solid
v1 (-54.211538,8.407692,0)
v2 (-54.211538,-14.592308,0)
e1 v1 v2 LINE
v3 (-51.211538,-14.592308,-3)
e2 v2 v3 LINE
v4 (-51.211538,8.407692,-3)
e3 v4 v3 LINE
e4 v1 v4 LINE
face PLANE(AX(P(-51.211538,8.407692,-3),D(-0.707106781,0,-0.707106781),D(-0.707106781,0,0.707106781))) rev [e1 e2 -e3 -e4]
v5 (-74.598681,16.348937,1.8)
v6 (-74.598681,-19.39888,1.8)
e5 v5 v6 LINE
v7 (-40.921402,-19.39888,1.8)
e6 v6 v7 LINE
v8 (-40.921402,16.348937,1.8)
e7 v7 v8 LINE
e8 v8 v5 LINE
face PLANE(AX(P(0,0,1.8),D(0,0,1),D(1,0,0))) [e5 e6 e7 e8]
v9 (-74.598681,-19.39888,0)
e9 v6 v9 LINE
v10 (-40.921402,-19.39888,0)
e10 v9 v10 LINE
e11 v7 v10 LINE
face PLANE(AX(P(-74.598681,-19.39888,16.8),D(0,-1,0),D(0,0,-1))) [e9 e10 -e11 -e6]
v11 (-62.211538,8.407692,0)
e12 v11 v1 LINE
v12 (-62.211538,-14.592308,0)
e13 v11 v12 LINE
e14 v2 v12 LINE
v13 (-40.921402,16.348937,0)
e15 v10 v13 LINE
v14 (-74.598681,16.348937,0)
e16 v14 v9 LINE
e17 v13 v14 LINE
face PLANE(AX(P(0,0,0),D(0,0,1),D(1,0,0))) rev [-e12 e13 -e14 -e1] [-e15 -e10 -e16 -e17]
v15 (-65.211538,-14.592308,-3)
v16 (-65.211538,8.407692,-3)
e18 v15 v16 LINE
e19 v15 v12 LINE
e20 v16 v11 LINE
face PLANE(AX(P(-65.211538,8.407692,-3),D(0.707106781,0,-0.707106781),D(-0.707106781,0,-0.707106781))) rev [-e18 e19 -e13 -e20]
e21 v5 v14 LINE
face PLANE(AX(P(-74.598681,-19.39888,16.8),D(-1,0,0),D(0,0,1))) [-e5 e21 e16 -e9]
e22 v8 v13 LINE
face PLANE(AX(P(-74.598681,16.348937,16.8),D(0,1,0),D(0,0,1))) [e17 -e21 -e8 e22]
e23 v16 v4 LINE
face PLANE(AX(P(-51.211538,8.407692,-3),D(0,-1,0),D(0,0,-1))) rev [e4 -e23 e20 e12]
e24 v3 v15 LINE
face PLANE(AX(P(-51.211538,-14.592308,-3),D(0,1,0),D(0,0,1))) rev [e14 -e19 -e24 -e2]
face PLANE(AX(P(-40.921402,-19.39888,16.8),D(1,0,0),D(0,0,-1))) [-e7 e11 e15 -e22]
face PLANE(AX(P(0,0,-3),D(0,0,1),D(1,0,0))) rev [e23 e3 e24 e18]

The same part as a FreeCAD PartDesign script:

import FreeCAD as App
import Part
import Sketcher
Q = App.Units.Quantity


def add_polygon(sketch, points):
    """Adds a closed chain of lines whose ends are joined by coincident constraints."""
    first, n = sketch.GeometryCount, len(points)
    for a, b in zip(points, points[1:] + points[:1]):
        sketch.addGeometry(Part.LineSegment(App.Vector(*a, 0), App.Vector(*b, 0)), False)
    for i in range(n):
        sketch.addConstraint(Sketcher.Constraint("Coincident", first + i, 2, first + (i + 1) % n, 1))

doc = App.newDocument("Part")
params = doc.addObject("Spreadsheet::Sheet", "Params")
for row, (alias, value) in enumerate([
    ("sketch1_height", "74 mm"),
    ("sketch1_width", "65.5 mm"),
    ("pad1_length", "1.8 mm"),
    ("sketch2_width", "5 mm"),
    ("sketch2_height", "74 mm"),
    ("pad2_length", "15 mm"),
    ("sketch3_width", "1.3 mm"),
    ("sketch3_width2", "3.4 mm"),
    ("sketch3_height", "0.9 mm"),
    ("sketch3_height2", "2.1 mm"),
    ("pocket1_length", "74 mm"),
    ("sketch4_width", "10 mm"),
    ("sketch4_width2", "20 mm"),
    ("sketch4_width3", "65.5 mm"),
    ("sketch4_height", "8.7 mm"),
    ("sketch4_height2", "5.7 mm"),
    ("pad3_length", "1.8 mm"),
    ("sketch5_width", "14 mm"),
    ("sketch5_height", "23 mm"),
    ("pad4_length", "3 mm"),
    ("sketch6_width", "3 mm"),
    ("pocket2_length", "23 mm"),
    ("sketch7_diameter", "2 mm"),
    ("pocket3_length", "8 mm"),
    ("sketch8_diameter", "2 mm"),
    ("pocket4_length", "8 mm"),
    ("pocket5_length", "16.8 mm"),
], start=1):
    params.set(f"A{row}", alias)
    params.set(f"B{row}", "=" + value)
    params.setAlias(f"B{row}", alias)

body = doc.addObject("PartDesign::Body", "Body")

sketch1 = doc.addObject("Sketcher::SketchObject", "Sketch")
body.addObject(sketch1)
sketch1.AttachmentSupport = (doc.XY_Plane, [""])
sketch1.MapMode = "FlatFace"
add_polygon(sketch1, [(-91, 35), (-91, -39), (-25, -39), (-25, 35)])
sketch1.addConstraint(Sketcher.Constraint("Vertical", 0))
sketch1.addConstraint(Sketcher.Constraint("Horizontal", 1))
sketch1.addConstraint(Sketcher.Constraint("Vertical", 2))
sketch1.addConstraint(Sketcher.Constraint("Horizontal", 3))
sketch1.addConstraint(Sketcher.Constraint("DistanceY", 0, 2, 0, 1, Q("74 mm")))
sketch1.addConstraint(Sketcher.Constraint("DistanceX", 1, 1, 1, 2, Q("65.5 mm")))
sketch1.addConstraint(Sketcher.Constraint("DistanceX", 0, 2, -1, 1, Q("90.961538 mm")))
sketch1.addConstraint(Sketcher.Constraint("DistanceY", 0, 2, -1, 1, Q("39.192308 mm")))
sketch1.setExpression("Constraints[8]", "Params.sketch1_height")
sketch1.setExpression("Constraints[9]", "Params.sketch1_width")
pad1 = doc.addObject("PartDesign::Pad", "Pad")
body.addObject(pad1)
pad1.Profile = sketch1
pad1.setExpression("Length", "Params.pad1_length")

sketch2 = doc.addObject("Sketcher::SketchObject", "Sketch001")
body.addObject(sketch2)
sketch2.AttachmentSupport = (doc.XY_Plane, [""])
sketch2.MapMode = "FlatFace"
sketch2.AttachmentOffset = App.Placement(App.Vector(0, 0, 1.8), App.Rotation())
add_polygon(sketch2, [(-91, 35), (-91, -39), (-86, -39), (-86, 35)])
add_polygon(sketch2, [(-30, 35), (-30, -39), (-25, -39), (-25, 35)])
sketch2.addConstraint(Sketcher.Constraint("Vertical", 0))
sketch2.addConstraint(Sketcher.Constraint("Horizontal", 1))
sketch2.addConstraint(Sketcher.Constraint("Vertical", 2))
sketch2.addConstraint(Sketcher.Constraint("Horizontal", 3))
sketch2.addConstraint(Sketcher.Constraint("Vertical", 4))
sketch2.addConstraint(Sketcher.Constraint("Horizontal", 5))
sketch2.addConstraint(Sketcher.Constraint("Vertical", 6))
sketch2.addConstraint(Sketcher.Constraint("Horizontal", 7))
sketch2.addConstraint(Sketcher.Constraint("Horizontal", 1, 2, 4, 2))
sketch2.addConstraint(Sketcher.Constraint("Horizontal", 3, 2, 6, 2))
sketch2.addConstraint(Sketcher.Constraint("Equal", 3, 5))
sketch2.addConstraint(Sketcher.Constraint("DistanceX", 1, 1, 1, 2, Q("5 mm")))
sketch2.addConstraint(Sketcher.Constraint("DistanceY", 0, 2, 0, 1, Q("74 mm")))
sketch2.addConstraint(Sketcher.Constraint("DistanceX", 1, 2, 4, 2, Q("55.5 mm")))
sketch2.addConstraint(Sketcher.Constraint("DistanceX", 0, 2, -1, 1, Q("90.961538 mm")))
sketch2.addConstraint(Sketcher.Constraint("DistanceY", 0, 2, -1, 1, Q("39.192308 mm")))
sketch2.setExpression("Constraints[19]", "Params.sketch2_width")
sketch2.setExpression("Constraints[20]", "Params.sketch2_height")
pad2 = doc.addObject("PartDesign::Pad", "Pad001")
body.addObject(pad2)
pad2.Profile = sketch2
pad2.setExpression("Length", "Params.pad2_length")

sketch3 = doc.addObject("Sketcher::SketchObject", "Sketch002")
body.addObject(sketch3)
sketch3.AttachmentSupport = (doc.XZ_Plane, [""])
sketch3.MapMode = "FlatFace"
sketch3.AttachmentOffset = App.Placement(App.Vector(0, 0, 39.192308), App.Rotation())
add_polygon(sketch3, [(-89.1, 16.8), (-89.1, 15.9), (-87.8, 15.9), (-87.8, 16.8)])
add_polygon(sketch3, [(-89.4, 15), (-89.4, 12.9), (-86, 12.9), (-86, 15)])
add_polygon(sketch3, [(-30.5, 15), (-30.5, 12.9), (-27.1, 12.9), (-27.1, 15)])
add_polygon(sketch3, [(-27.3, 16.8), (-28.6, 16.8), (-28.6, 15.9), (-27.3, 15.9)])
sketch3.addConstraint(Sketcher.Constraint("Vertical", 0))
sketch3.addConstraint(Sketcher.Constraint("Horizontal", 1))
sketch3.addConstraint(Sketcher.Constraint("Vertical", 2))
sketch3.addConstraint(Sketcher.Constraint("Horizontal", 3))
sketch3.addConstraint(Sketcher.Constraint("Vertical", 4))
sketch3.addConstraint(Sketcher.Constraint("Horizontal", 5))
sketch3.addConstraint(Sketcher.Constraint("Vertical", 6))
sketch3.addConstraint(Sketcher.Constraint("Horizontal", 7))
sketch3.addConstraint(Sketcher.Constraint("Vertical", 8))
sketch3.addConstraint(Sketcher.Constraint("Horizontal", 9))
sketch3.addConstraint(Sketcher.Constraint("Vertical", 10))
sketch3.addConstraint(Sketcher.Constraint("Horizontal", 11))
sketch3.addConstraint(Sketcher.Constraint("Horizontal", 12))
sketch3.addConstraint(Sketcher.Constraint("Vertical", 13))
sketch3.addConstraint(Sketcher.Constraint("Horizontal", 14))
sketch3.addConstraint(Sketcher.Constraint("Vertical", 15))
sketch3.addConstraint(Sketcher.Constraint("Horizontal", 5, 2, 8, 2))
sketch3.addConstraint(Sketcher.Constraint("Horizontal", 7, 2, 10, 2))
sketch3.addConstraint(Sketcher.Constraint("Horizontal", 3, 2, 12, 2))
sketch3.addConstraint(Sketcher.Constraint("Horizontal", 1, 2, 13, 2))
sketch3.addConstraint(Sketcher.Constraint("Equal", 7, 9))
sketch3.addConstraint(Sketcher.Constraint("Equal", 3, 12))
sketch3.addConstraint(Sketcher.Constraint("DistanceX", 1, 1, 1, 2, Q("1.3 mm")))
sketch3.addConstraint(Sketcher.Constraint("DistanceX", 5, 1, 5, 2, Q("3.4 mm")))
sketch3.addConstraint(Sketcher.Constraint("DistanceY", 0, 2, 0, 1, Q("0.9 mm")))
sketch3.addConstraint(Sketcher.Constraint("DistanceY", 4, 2, 4, 1, Q("2.1 mm")))
sketch3.addConstraint(Sketcher.Constraint("DistanceY", -1, 1, 6, 2, Q("15 mm")))
sketch3.addConstraint(Sketcher.Constraint("DistanceY", 4, 2, 0, 2, Q("3 mm")))
sketch3.addConstraint(Sketcher.Constraint("DistanceX", 5, 2, 8, 2, Q("55.5 mm")))
sketch3.addConstraint(Sketcher.Constraint("DistanceX", 4, 2, 0, 2, Q("0.25 mm")))
sketch3.addConstraint(Sketcher.Constraint("DistanceX", 12, 2, 10, 2, Q("1.55 mm")))
sketch3.addConstraint(Sketcher.Constraint("DistanceX", 0, 2, -1, 1, Q("89.111538 mm")))
sketch3.setExpression("Constraints[38]", "Params.sketch3_width")
sketch3.setExpression("Constraints[39]", "Params.sketch3_width2")
sketch3.setExpression("Constraints[40]", "Params.sketch3_height")
sketch3.setExpression("Constraints[41]", "Params.sketch3_height2")
pocket1 = doc.addObject("PartDesign::Pocket", "Pocket")
body.addObject(pocket1)
pocket1.Profile = sketch3
pocket1.setExpression("Length", "Params.pocket1_length")

sketch4 = doc.addObject("Sketcher::SketchObject", "Sketch003")
body.addObject(sketch4)
sketch4.AttachmentSupport = (doc.XZ_Plane, [""])
sketch4.MapMode = "FlatFace"
sketch4.AttachmentOffset = App.Placement(App.Vector(0, 0, 39.192308), App.Rotation())
add_polygon(sketch4, [(-81, 8.7), (-91, 8.7), (-91, 0), (-25.5, 0), (-25.5, 5.7), (-45.5, 5.7), (-45.5, 1.8), (-81, 1.8)])
sketch4.addConstraint(Sketcher.Constraint("Horizontal", 0))
sketch4.addConstraint(Sketcher.Constraint("Vertical", 1))
sketch4.addConstraint(Sketcher.Constraint("Horizontal", 2))
sketch4.addConstraint(Sketcher.Constraint("Vertical", 3))
sketch4.addConstraint(Sketcher.Constraint("Horizontal", 4))
sketch4.addConstraint(Sketcher.Constraint("Vertical", 5))
sketch4.addConstraint(Sketcher.Constraint("Horizontal", 6))
sketch4.addConstraint(Sketcher.Constraint("Vertical", 7))
sketch4.addConstraint(Sketcher.Constraint("PointOnObject", 1, 2, -1))
sketch4.addConstraint(Sketcher.Constraint("DistanceX", 0, 2, 0, 1, Q("10 mm")))
sketch4.addConstraint(Sketcher.Constraint("DistanceX", 4, 2, 4, 1, Q("20 mm")))
sketch4.addConstraint(Sketcher.Constraint("DistanceX", 2, 1, 2, 2, Q("65.5 mm")))
sketch4.addConstraint(Sketcher.Constraint("DistanceY", 1, 2, 1, 1, Q("8.7 mm")))
sketch4.addConstraint(Sketcher.Constraint("DistanceY", 3, 1, 3, 2, Q("5.7 mm")))
sketch4.addConstraint(Sketcher.Constraint("DistanceY", 5, 2, 5, 1, Q("3.9 mm")))
sketch4.addConstraint(Sketcher.Constraint("DistanceX", 0, 2, -1, 1, Q("90.961538 mm")))
sketch4.setExpression("Constraints[17]", "Params.sketch4_width")
sketch4.setExpression("Constraints[18]", "Params.sketch4_width2")
sketch4.setExpression("Constraints[19]", "Params.sketch4_width3")
sketch4.setExpression("Constraints[20]", "Params.sketch4_height")
sketch4.setExpression("Constraints[21]", "Params.sketch4_height2")
pad3 = doc.addObject("PartDesign::Pad", "Pad002")
body.addObject(pad3)
pad3.Profile = sketch4
pad3.setExpression("Length", "Params.pad3_length")

sketch5 = doc.addObject("Sketcher::SketchObject", "Sketch004")
body.addObject(sketch5)
sketch5.AttachmentSupport = (doc.XY_Plane, [""])
sketch5.MapMode = "FlatFace"
add_polygon(sketch5, [(-51, 8), (-51, -15), (-65, -15), (-65, 8)])
sketch5.addConstraint(Sketcher.Constraint("Vertical", 0))
sketch5.addConstraint(Sketcher.Constraint("Horizontal", 1))
sketch5.addConstraint(Sketcher.Constraint("Vertical", 2))
sketch5.addConstraint(Sketcher.Constraint("Horizontal", 3))
sketch5.addConstraint(Sketcher.Constraint("DistanceX", 1, 2, 1, 1, Q("14 mm")))
sketch5.addConstraint(Sketcher.Constraint("DistanceY", 0, 2, 0, 1, Q("23 mm")))
sketch5.addConstraint(Sketcher.Constraint("DistanceX", 0, 2, -1, 1, Q("51.211538 mm")))
sketch5.addConstraint(Sketcher.Constraint("DistanceY", 0, 2, -1, 1, Q("14.592308 mm")))
sketch5.setExpression("Constraints[8]", "Params.sketch5_width")
sketch5.setExpression("Constraints[9]", "Params.sketch5_height")
pad4 = doc.addObject("PartDesign::Pad", "Pad003")
body.addObject(pad4)
pad4.Profile = sketch5
pad4.setExpression("Length", "Params.pad4_length")
pad4.Reversed = True

sketch6 = doc.addObject("Sketcher::SketchObject", "Sketch005")
body.addObject(sketch6)
sketch6.AttachmentSupport = (doc.XZ_Plane, [""])
sketch6.MapMode = "FlatFace"
sketch6.AttachmentOffset = App.Placement(App.Vector(0, 0, 14.592308), App.Rotation())
add_polygon(sketch6, [(-54.2, 0), (-51.2, -3), (-51.2, 0)])
add_polygon(sketch6, [(-65.2, -3), (-62.2, 0), (-65.2, 0)])
sketch6.addConstraint(Sketcher.Constraint("Vertical", 1))
sketch6.addConstraint(Sketcher.Constraint("Horizontal", 2))
sketch6.addConstraint(Sketcher.Constraint("Horizontal", 4))
sketch6.addConstraint(Sketcher.Constraint("Vertical", 5))
sketch6.addConstraint(Sketcher.Constraint("PointOnObject", 1, 2, -1))
sketch6.addConstraint(Sketcher.Constraint("PointOnObject", 3, 2, -1))
sketch6.addConstraint(Sketcher.Constraint("Perpendicular", 0, 3))
sketch6.addConstraint(Sketcher.Constraint("Horizontal", 0, 2, 5, 2))
sketch6.addConstraint(Sketcher.Constraint("Equal", 2, 4))
sketch6.addConstraint(Sketcher.Constraint("DistanceX", 2, 2, 2, 1, Q("3 mm")))
sketch6.addConstraint(Sketcher.Constraint("DistanceX", 3, 2, 2, 2, Q("8 mm")))
sketch6.addConstraint(Sketcher.Constraint("DistanceX", 0, 2, -1, 1, Q("51.211538 mm")))
sketch6.setExpression("Constraints[15]", "Params.sketch6_width")
pocket2 = doc.addObject("PartDesign::Pocket", "Pocket001")
body.addObject(pocket2)
pocket2.Profile = sketch6
pocket2.setExpression("Length", "Params.pocket2_length")

sketch7 = doc.addObject("Sketcher::SketchObject", "Sketch006")
body.addObject(sketch7)
sketch7.AttachmentSupport = (doc.XZ_Plane, [""])
sketch7.MapMode = "FlatFace"
sketch7.AttachmentOffset = App.Placement(App.Vector(0, 0, 39.192308), App.Rotation())
sketch7.addGeometry(Part.Circle(App.Vector(-87.7, 10.9, 0), App.Vector(0, 0, 1), 1), False)
sketch7.addGeometry(Part.Circle(App.Vector(-28.8, 10.9, 0), App.Vector(0, 0, 1), 1), False)
sketch7.addConstraint(Sketcher.Constraint("Equal", 0, 1))
sketch7.addConstraint(Sketcher.Constraint("Horizontal", 0, 3, 1, 3))
sketch7.addConstraint(Sketcher.Constraint("Diameter", 0, Q("2 mm")))
sketch7.addConstraint(Sketcher.Constraint("DistanceY", -1, 1, 0, 3, Q("10.9 mm")))
sketch7.addConstraint(Sketcher.Constraint("DistanceX", 0, 3, 1, 3, Q("58.9 mm")))
sketch7.addConstraint(Sketcher.Constraint("DistanceX", 0, 3, -1, 1, Q("87.661538 mm")))
sketch7.setExpression("Constraints[2]", "Params.sketch7_diameter")
pocket3 = doc.addObject("PartDesign::Pocket", "Pocket002")
body.addObject(pocket3)
pocket3.Profile = sketch7
pocket3.setExpression("Length", "Params.pocket3_length")

sketch8 = doc.addObject("Sketcher::SketchObject", "Sketch007")
body.addObject(sketch8)
sketch8.AttachmentSupport = (doc.XZ_Plane, [""])
sketch8.MapMode = "FlatFace"
sketch8.AttachmentOffset = App.Placement(App.Vector(0, 0, -26.807692), App.Rotation())
sketch8.addGeometry(Part.Circle(App.Vector(-28.8, 10.9, 0), App.Vector(0, 0, 1), 1), False)
sketch8.addGeometry(Part.Circle(App.Vector(-87.7, 10.9, 0), App.Vector(0, 0, 1), 1), False)
sketch8.addConstraint(Sketcher.Constraint("Equal", 0, 1))
sketch8.addConstraint(Sketcher.Constraint("Horizontal", 0, 3, 1, 3))
sketch8.addConstraint(Sketcher.Constraint("Diameter", 0, Q("2 mm")))
sketch8.addConstraint(Sketcher.Constraint("DistanceY", -1, 1, 0, 3, Q("10.9 mm")))
sketch8.addConstraint(Sketcher.Constraint("DistanceX", 1, 3, 0, 3, Q("58.9 mm")))
sketch8.addConstraint(Sketcher.Constraint("DistanceX", 0, 3, -1, 1, Q("28.761538 mm")))
sketch8.setExpression("Constraints[2]", "Params.sketch8_diameter")
pocket4 = doc.addObject("PartDesign::Pocket", "Pocket003")
body.addObject(pocket4)
pocket4.Profile = sketch8
pocket4.setExpression("Length", "Params.pocket4_length")

sketch9 = doc.addObject("Sketcher::SketchObject", "Sketch008")
body.addObject(sketch9)
sketch9.AttachmentSupport = (doc.XY_Plane, [""])
sketch9.MapMode = "FlatFace"
sketch9.AttachmentOffset = App.Placement(App.Vector(0, 0, 16.8), App.Rotation())
add_polygon(sketch9, [(-21, 36), (-21, -45), (-93, -45), (-93, 36)])
add_polygon(sketch9, [(-75, -19), (-41, -19), (-41, 16), (-75, 16)])
sketch9.addConstraint(Sketcher.Constraint("Vertical", 0))
sketch9.addConstraint(Sketcher.Constraint("Horizontal", 1))
sketch9.addConstraint(Sketcher.Constraint("Vertical", 2))
sketch9.addConstraint(Sketcher.Constraint("Horizontal", 3))
sketch9.addConstraint(Sketcher.Constraint("Horizontal", 4))
sketch9.addConstraint(Sketcher.Constraint("Vertical", 5))
sketch9.addConstraint(Sketcher.Constraint("Horizontal", 6))
sketch9.addConstraint(Sketcher.Constraint("Vertical", 7))
sketch9.addConstraint(Sketcher.Constraint("DistanceX", 4, 1, 4, 2, Q("33.677279 mm")))
sketch9.addConstraint(Sketcher.Constraint("DistanceY", 0, 2, 0, 1, Q("80.937811 mm")))
sketch9.addConstraint(Sketcher.Constraint("DistanceX", 1, 2, 1, 1, Q("72.040317 mm")))
sketch9.addConstraint(Sketcher.Constraint("DistanceY", 5, 1, 5, 2, Q("35.747817 mm")))
sketch9.addConstraint(Sketcher.Constraint("DistanceY", 4, 2, -1, 1, Q("19.39888 mm")))
sketch9.addConstraint(Sketcher.Constraint("DistanceX", 6, 2, -1, 1, Q("74.598681 mm")))
sketch9.addConstraint(Sketcher.Constraint("DistanceX", 1, 2, 4, 2, Q("52.466441 mm")))
sketch9.addConstraint(Sketcher.Constraint("DistanceY", 5, 2, 3, 2, Q("19.819349 mm")))
pocket5 = doc.addObject("PartDesign::Pocket", "Pocket004")
body.addObject(pocket5)
pocket5.Profile = sketch9
pocket5.setExpression("Length", "Params.pocket5_length")

doc.recompute()
